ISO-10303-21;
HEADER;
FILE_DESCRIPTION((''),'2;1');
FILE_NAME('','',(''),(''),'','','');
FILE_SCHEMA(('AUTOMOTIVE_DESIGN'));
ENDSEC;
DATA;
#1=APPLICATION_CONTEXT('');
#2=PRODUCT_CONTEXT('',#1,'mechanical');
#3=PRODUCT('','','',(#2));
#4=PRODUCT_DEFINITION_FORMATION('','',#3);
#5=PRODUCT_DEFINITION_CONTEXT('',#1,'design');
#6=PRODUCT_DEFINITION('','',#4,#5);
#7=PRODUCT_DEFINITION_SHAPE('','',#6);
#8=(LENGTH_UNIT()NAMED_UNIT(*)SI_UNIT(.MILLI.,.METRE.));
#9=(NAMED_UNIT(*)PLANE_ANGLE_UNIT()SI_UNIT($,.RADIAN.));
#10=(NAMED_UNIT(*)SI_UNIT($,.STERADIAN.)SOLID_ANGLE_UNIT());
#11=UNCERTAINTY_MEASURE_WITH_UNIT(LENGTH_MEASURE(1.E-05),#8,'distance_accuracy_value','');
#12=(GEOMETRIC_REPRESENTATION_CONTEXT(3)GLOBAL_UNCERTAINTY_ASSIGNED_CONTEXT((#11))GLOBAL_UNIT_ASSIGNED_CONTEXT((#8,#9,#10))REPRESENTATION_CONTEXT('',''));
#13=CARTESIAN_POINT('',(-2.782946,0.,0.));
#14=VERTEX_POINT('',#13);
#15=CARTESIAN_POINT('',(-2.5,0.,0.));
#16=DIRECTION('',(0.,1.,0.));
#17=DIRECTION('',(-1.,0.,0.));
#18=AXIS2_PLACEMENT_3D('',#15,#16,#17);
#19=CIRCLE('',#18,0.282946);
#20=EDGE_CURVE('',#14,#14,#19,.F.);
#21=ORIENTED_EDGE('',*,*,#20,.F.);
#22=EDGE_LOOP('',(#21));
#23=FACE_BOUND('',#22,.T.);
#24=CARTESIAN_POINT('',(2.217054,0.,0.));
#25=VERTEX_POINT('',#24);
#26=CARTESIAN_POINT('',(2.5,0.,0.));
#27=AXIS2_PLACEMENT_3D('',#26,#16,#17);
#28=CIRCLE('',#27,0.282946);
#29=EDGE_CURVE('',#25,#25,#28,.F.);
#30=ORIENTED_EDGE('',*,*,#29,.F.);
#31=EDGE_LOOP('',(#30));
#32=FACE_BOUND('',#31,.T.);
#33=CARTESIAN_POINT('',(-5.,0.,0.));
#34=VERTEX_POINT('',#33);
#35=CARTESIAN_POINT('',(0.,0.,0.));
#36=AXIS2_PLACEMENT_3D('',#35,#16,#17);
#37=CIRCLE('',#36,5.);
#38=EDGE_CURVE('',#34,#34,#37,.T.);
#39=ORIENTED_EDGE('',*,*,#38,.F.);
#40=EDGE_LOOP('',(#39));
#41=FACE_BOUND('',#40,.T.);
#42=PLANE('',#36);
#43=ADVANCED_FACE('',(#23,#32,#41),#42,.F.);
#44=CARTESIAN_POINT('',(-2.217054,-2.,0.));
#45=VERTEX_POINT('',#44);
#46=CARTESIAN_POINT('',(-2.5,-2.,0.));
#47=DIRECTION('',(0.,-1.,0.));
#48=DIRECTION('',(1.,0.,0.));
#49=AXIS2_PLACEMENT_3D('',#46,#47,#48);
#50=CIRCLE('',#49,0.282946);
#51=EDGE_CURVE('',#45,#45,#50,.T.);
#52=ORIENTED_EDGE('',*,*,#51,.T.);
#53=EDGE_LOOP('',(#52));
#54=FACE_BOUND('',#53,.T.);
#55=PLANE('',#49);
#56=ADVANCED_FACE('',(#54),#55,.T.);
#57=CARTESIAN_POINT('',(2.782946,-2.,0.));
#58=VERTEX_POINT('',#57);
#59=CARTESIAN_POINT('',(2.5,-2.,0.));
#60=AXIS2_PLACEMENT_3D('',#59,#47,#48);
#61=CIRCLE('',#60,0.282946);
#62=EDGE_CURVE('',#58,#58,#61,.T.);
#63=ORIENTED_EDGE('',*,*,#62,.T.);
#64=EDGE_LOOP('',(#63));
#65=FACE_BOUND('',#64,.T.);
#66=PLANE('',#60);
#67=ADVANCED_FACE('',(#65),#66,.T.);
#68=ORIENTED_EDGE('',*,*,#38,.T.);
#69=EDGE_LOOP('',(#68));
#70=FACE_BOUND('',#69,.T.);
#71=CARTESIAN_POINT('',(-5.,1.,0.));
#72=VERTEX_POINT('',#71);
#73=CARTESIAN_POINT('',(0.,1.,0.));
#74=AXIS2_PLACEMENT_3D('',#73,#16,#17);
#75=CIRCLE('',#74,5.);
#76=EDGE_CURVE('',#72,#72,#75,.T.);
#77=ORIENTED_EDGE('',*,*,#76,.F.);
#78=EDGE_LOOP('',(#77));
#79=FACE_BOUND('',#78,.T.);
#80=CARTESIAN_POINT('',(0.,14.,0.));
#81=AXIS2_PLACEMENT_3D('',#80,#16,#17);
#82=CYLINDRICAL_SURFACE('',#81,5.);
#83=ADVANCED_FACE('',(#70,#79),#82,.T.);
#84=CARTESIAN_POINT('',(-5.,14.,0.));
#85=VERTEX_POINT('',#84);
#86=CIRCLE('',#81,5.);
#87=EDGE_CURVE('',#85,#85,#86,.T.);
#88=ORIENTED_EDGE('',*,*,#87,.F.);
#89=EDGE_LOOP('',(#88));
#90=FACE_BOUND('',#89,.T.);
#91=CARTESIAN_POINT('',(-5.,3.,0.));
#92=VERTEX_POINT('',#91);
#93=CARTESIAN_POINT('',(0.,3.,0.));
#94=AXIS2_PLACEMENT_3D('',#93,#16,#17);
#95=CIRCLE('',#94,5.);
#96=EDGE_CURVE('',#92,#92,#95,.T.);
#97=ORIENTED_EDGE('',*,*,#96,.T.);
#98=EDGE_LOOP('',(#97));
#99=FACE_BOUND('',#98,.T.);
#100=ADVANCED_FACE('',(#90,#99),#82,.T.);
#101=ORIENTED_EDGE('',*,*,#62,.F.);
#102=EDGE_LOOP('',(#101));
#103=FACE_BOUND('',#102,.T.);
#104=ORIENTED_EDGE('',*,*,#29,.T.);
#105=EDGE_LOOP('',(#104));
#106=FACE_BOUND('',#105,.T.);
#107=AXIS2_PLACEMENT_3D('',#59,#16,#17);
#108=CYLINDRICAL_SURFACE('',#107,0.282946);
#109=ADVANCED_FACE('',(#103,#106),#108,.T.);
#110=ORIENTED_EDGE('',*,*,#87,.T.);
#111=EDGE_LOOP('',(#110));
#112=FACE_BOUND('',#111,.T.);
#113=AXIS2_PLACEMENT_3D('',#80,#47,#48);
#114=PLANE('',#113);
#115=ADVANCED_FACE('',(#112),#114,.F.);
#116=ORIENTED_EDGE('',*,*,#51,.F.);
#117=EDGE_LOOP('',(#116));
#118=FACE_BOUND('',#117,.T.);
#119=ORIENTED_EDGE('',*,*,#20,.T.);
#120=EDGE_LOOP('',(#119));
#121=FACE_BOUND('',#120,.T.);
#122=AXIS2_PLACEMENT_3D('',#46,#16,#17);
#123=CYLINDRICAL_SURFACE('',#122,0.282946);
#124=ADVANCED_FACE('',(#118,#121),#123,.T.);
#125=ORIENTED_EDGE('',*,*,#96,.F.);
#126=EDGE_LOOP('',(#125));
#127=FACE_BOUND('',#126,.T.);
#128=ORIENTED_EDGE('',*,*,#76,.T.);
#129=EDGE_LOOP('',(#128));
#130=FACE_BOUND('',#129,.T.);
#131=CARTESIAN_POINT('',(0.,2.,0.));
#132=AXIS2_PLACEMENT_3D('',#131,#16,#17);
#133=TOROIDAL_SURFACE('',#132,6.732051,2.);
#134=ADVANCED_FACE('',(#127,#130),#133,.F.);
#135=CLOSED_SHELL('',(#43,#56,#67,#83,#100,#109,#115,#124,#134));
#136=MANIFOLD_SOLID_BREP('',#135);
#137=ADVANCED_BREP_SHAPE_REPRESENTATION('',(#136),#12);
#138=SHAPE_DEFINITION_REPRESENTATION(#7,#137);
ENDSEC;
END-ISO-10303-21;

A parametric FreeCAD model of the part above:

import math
import FreeCAD as App
import Part
import Sketcher

V = App.Vector
Q = App.Units.Quantity

doc = App.newDocument("Part")
body = doc.addObject("PartDesign::Body", "Body")

sketch1 = body.newObject("Sketcher::SketchObject", "Sketch")
sketch1.AttachmentSupport = (doc.getObject("XY_Plane"), [""])
sketch1.MapMode = "FlatFace"
sketch1.addGeometry(Part.LineSegment(V(0, 14, 0), V(0, 0, 0)), False)
sketch1.addGeometry(Part.LineSegment(V(0, 0, 0), V(5, 0, 0)), False)
sketch1.addGeometry(Part.LineSegment(V(5, 0, 0), V(5, 1, 0)), False)
sketch1.addGeometry(Part.ArcOfCircle(Part.Circle(V(6.7, 2, 0), V(0, 0, 1), 2), math.radians(150), math.radians(210)), False)
sketch1.addGeometry(Part.LineSegment(V(5, 3, 0), V(5, 14, 0)), False)
sketch1.addGeometry(Part.LineSegment(V(5, 14, 0), V(0, 14, 0)), False)
sketch1.addConstraint(Sketcher.Constraint("Coincident", 0, 2, 1, 1))
sketch1.addConstraint(Sketcher.Constraint("Coincident", 1, 2, 2, 1))
sketch1.addConstraint(Sketcher.Constraint("Coincident", 2, 2, 3, 2))
sketch1.addConstraint(Sketcher.Constraint("Coincident", 3, 1, 4, 1))
sketch1.addConstraint(Sketcher.Constraint("Coincident", 4, 2, 5, 1))
sketch1.addConstraint(Sketcher.Constraint("Coincident", 5, 2, 0, 1))
sketch1.addConstraint(Sketcher.Constraint("Vertical", 0))
sketch1.addConstraint(Sketcher.Constraint("Horizontal", 1))
sketch1.addConstraint(Sketcher.Constraint("Vertical", 2))
sketch1.addConstraint(Sketcher.Constraint("Vertical", 4))
sketch1.addConstraint(Sketcher.Constraint("Horizontal", 5))
sketch1.addConstraint(Sketcher.Constraint("Coincident", 0, 2, -1, 1))
sketch1.addConstraint(Sketcher.Constraint("Vertical", 2, 2, 3, 1))
sketch1.addConstraint(Sketcher.Constraint("Radius", 3, Q("2 mm")))
sketch1.addConstraint(Sketcher.Constraint("DistanceX", 1, 1, 1, 2, Q("5 mm")))
sketch1.addConstraint(Sketcher.Constraint("DistanceY", 0, 2, 0, 1, Q("14 mm")))
sketch1.addConstraint(Sketcher.Constraint("DistanceY", 2, 1, 2, 2, Q("1 mm")))
sketch1.addConstraint(Sketcher.Constraint("DistanceY", 4, 1, 4, 2, Q("11 mm")))
revolution = body.newObject("PartDesign::Revolution", "Revolution")
revolution.Profile = sketch1
revolution.ReferenceAxis = (sketch1, ["V_Axis"])
revolution.Angle = 360

sketch2 = body.newObject("Sketcher::SketchObject", "Sketch001")
sketch2.AttachmentSupport = (doc.getObject("XZ_Plane"), [""])
sketch2.MapMode = "FlatFace"
sketch2.addGeometry(Part.Circle(V(2.5, 0, 0), V(0, 0, 1), 0.28), False)
sketch2.addGeometry(Part.Circle(V(-2.5, 0, 0), V(0, 0, 1), 0.28), False)
sketch2.addConstraint(Sketcher.Constraint("Equal", 0, 1))
sketch2.addConstraint(Sketcher.Constraint("Symmetric", 0, 3, 1, 3, -1, 1))
sketch2.addConstraint(Sketcher.Constraint("PointOnObject", 0, 3, -1))
sketch2.addConstraint(Sketcher.Constraint("DistanceX", 1, 3, 0, 3, Q("5 mm")))
sketch2.addConstraint(Sketcher.Constraint("Diameter", 0, Q("0.565892 mm")))
pad1 = body.newObject("PartDesign::Pad", "Pad")
pad1.Profile = sketch2
pad1.Length = 2

doc.recompute()
